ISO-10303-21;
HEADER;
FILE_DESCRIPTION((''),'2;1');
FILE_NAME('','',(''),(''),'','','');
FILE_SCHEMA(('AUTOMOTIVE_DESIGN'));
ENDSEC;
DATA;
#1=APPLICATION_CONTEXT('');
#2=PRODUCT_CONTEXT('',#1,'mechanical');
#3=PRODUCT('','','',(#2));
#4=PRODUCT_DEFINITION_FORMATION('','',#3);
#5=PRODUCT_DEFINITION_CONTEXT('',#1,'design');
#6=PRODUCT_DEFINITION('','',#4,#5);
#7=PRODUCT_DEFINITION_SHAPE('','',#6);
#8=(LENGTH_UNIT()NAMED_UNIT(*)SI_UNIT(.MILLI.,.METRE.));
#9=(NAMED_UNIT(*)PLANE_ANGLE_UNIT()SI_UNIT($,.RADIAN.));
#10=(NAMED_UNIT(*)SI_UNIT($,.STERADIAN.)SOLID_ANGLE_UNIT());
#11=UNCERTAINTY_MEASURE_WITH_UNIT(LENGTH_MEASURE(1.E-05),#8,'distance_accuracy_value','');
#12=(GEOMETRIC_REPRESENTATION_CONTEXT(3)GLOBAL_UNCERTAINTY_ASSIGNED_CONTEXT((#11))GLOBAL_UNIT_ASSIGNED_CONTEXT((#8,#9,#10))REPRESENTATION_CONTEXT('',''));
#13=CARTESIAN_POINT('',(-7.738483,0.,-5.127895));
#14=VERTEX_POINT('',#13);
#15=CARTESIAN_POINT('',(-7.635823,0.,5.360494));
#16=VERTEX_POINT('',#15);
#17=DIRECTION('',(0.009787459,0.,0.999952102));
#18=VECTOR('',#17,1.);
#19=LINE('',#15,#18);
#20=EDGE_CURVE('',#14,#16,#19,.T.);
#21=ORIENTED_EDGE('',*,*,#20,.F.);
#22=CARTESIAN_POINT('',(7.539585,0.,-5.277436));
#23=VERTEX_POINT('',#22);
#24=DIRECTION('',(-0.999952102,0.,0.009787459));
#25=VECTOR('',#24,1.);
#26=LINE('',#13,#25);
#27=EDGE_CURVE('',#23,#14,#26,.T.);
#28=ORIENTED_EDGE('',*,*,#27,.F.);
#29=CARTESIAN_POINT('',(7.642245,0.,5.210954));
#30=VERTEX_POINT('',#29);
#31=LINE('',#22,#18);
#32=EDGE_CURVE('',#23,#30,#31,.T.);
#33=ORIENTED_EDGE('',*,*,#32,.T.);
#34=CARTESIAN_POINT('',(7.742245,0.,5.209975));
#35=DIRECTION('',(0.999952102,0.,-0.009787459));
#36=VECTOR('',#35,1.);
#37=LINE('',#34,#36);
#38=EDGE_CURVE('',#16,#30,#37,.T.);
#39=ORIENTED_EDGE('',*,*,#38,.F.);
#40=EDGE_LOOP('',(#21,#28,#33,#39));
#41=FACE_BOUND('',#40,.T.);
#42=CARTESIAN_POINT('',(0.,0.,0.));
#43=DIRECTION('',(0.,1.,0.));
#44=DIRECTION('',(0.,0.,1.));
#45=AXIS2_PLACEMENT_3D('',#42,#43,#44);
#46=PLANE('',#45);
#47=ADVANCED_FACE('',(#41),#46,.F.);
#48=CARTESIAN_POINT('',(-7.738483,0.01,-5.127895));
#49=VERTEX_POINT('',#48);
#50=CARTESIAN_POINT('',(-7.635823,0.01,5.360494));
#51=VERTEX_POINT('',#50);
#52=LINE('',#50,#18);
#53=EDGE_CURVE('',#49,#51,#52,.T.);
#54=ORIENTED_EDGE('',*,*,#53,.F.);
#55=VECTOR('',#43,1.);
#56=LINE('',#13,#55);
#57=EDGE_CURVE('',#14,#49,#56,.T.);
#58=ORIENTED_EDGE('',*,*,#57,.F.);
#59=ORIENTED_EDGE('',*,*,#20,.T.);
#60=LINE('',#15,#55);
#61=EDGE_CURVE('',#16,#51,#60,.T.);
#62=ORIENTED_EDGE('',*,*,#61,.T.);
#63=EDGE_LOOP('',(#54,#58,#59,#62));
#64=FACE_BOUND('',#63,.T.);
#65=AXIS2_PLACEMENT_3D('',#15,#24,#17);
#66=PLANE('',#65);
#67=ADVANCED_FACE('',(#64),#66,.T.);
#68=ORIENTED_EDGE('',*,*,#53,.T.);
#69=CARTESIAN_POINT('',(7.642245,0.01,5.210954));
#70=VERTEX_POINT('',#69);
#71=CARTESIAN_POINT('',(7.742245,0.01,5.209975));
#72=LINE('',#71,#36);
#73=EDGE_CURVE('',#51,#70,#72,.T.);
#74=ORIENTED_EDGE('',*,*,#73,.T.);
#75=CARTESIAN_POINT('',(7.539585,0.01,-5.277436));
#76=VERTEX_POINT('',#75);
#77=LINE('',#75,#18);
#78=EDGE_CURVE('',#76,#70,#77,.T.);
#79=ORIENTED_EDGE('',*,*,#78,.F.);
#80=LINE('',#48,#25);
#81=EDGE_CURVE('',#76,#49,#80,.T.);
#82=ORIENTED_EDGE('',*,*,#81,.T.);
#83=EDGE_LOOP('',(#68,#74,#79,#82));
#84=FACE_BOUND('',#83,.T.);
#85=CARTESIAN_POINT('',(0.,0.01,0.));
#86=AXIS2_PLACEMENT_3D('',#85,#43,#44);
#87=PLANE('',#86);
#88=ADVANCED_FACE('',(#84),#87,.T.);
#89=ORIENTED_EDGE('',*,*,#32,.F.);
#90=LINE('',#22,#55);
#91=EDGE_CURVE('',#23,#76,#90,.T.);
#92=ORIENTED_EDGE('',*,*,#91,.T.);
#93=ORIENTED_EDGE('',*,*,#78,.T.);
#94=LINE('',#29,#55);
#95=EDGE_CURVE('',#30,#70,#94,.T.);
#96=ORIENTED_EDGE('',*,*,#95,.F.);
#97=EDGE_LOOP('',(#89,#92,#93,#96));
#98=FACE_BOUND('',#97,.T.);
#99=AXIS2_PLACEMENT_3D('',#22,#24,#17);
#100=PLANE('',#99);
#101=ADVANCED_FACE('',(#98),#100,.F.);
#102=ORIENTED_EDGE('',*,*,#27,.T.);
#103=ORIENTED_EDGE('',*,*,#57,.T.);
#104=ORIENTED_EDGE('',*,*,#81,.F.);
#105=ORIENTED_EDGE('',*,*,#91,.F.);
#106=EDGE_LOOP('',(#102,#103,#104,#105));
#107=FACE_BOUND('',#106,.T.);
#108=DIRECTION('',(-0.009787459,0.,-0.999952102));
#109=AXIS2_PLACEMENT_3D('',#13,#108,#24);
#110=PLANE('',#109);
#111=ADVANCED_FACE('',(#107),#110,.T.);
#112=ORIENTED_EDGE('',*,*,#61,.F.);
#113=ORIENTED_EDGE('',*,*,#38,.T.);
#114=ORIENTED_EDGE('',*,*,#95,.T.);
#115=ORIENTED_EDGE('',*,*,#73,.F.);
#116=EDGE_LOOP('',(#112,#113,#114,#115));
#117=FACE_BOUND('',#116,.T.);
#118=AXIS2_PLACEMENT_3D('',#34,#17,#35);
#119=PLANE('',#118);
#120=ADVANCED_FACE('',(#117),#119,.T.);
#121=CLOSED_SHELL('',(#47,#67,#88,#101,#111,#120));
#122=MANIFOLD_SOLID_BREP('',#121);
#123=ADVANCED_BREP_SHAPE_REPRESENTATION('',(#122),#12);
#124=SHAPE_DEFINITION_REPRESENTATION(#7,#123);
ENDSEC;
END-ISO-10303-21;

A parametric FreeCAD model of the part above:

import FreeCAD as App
import Part
import Sketcher
from FreeCAD import Vector


def add_polygon(sketch, points):
    """Adds a closed chain of lines whose ends are joined by coincident constraints."""
    first, n = sketch.GeometryCount, len(points)
    for a, b in zip(points, points[1:] + points[:1]):
        sketch.addGeometry(Part.LineSegment(App.Vector(*a, 0), App.Vector(*b, 0)), False)
    for i in range(n):
        sketch.addConstraint(Sketcher.Constraint("Coincident", first + i, 2, first + (i + 1) % n, 1))

doc = App.newDocument("Part")
body = doc.addObject("PartDesign::Body", "Body")

# Sketch on XZ plane
sketch1 = body.newObject("Sketcher::SketchObject", "Sketch")
sketch1.AttachmentSupport = (doc.getObject("XZ_Plane"), [""])
sketch1.MapMode = "FlatFace"
add_polygon(sketch1, [(-8, -6), (-8, 6), (8, 6), (8, -6)])  # lines 0-3
sketch1.addConstraint([
    Sketcher.Constraint("Vertical", 0),
    Sketcher.Constraint("Horizontal", 1),
    Sketcher.Constraint("Vertical", 2),
    Sketcher.Constraint("Horizontal", 3),
    Sketcher.Constraint("Symmetric", 0, 2, 2, 2, -1, 1),
    Sketcher.Constraint("DistanceX", 1, 1, 1, 2, 17.0),
    Sketcher.Constraint("DistanceY", 0, 1, 0, 2, 12.0),
])
pad1 = body.newObject("PartDesign::Pad", "Pad")
pad1.Profile = sketch1
pad1.Length = 0.01
pad1.Reversed = True

# Sketch on XZ plane
sketch2 = body.newObject("Sketcher::SketchObject", "Sketch001")
sketch2.AttachmentSupport = (doc.getObject("XZ_Plane"), [""])
sketch2.MapMode = "FlatFace"
sketch2.AttachmentOffset = App.Placement(Vector(0, 0, -0.01), App.Rotation())
add_polygon(sketch2, [(-12, -8), (-12, 8), (12, 8), (12, -8)])  # lines 0-3
add_polygon(sketch2, [(-8, 5), (-8, -5), (8, -5), (8, 5)])  # lines 4-7
sketch2.addConstraint([
    Sketcher.Constraint("Vertical", 0),
    Sketcher.Constraint("Horizontal", 1),
    Sketcher.Constraint("Vertical", 2),
    Sketcher.Constraint("Horizontal", 3),
    Sketcher.Constraint("Symmetric", 0, 2, 2, 2, -1, 1),
    Sketcher.Constraint("Perpendicular", 4, 5),
    Sketcher.Constraint("Perpendicular", 5, 6),
    Sketcher.Constraint("Perpendicular", 6, 7),
    Sketcher.Constraint("DistanceX", 1, 1, 1, 2, 23.426921),
    Sketcher.Constraint("Distance", 4, 10.488892),
    Sketcher.Constraint("DistanceY", 0, 1, 0, 2, 16.117558),
    Sketcher.Constraint("DistanceX", 4, 2, 5, 2, 15.378068),
    Sketcher.Constraint("DistanceY", 5, 2, 4, 2, 0.150519),
    Sketcher.Constraint("DistanceX", 4, 2, -1, 1, 7.738483),
    Sketcher.Constraint("DistanceY", 4, 2, -1, 1, 5.127895),
])
pocket1 = body.newObject("PartDesign::Pocket", "Pocket")
pocket1.Profile = sketch2
pocket1.Length = 0.01
pocket1.Reversed = True

# Sketch on XZ plane
sketch3 = body.newObject("Sketcher::SketchObject", "Sketch002")
sketch3.AttachmentSupport = (doc.getObject("XZ_Plane"), [""])
sketch3.MapMode = "FlatFace"
sketch3.AttachmentOffset = App.Placement(Vector(0, 0, -0.01), App.Rotation())
add_polygon(sketch3, [(7.742245, 5.209975), (7.639585, -5.278415), (7.539585, -5.277436), (7.642245, 5.210954)])  # lines 0-3
sketch3.addConstraint([
    Sketcher.Constraint("DistanceX", 1, 2, 0, 2, 0.1),
    Sketcher.Constraint("DistanceX", 2, 2, 3, 2, 0.1),
    Sketcher.Constraint("Distance", 0, 10.488892),
    Sketcher.Constraint("Distance", 2, 10.488892),
    Sketcher.Constraint("DistanceY", 0, 2, 1, 2, 0.000979),
    Sketcher.Constraint("DistanceX", 1, 2, 2, 2, 0.10266),
    Sketcher.Constraint("DistanceX", -1, 1, 0, 2, 7.639585),
    Sketcher.Constraint("DistanceY", 0, 2, -1, 1, 5.278415),
])
pocket2 = body.newObject("PartDesign::Pocket", "Pocket001")
pocket2.Profile = sketch3
pocket2.Length = 0.01
pocket2.Reversed = True

doc.recompute()
